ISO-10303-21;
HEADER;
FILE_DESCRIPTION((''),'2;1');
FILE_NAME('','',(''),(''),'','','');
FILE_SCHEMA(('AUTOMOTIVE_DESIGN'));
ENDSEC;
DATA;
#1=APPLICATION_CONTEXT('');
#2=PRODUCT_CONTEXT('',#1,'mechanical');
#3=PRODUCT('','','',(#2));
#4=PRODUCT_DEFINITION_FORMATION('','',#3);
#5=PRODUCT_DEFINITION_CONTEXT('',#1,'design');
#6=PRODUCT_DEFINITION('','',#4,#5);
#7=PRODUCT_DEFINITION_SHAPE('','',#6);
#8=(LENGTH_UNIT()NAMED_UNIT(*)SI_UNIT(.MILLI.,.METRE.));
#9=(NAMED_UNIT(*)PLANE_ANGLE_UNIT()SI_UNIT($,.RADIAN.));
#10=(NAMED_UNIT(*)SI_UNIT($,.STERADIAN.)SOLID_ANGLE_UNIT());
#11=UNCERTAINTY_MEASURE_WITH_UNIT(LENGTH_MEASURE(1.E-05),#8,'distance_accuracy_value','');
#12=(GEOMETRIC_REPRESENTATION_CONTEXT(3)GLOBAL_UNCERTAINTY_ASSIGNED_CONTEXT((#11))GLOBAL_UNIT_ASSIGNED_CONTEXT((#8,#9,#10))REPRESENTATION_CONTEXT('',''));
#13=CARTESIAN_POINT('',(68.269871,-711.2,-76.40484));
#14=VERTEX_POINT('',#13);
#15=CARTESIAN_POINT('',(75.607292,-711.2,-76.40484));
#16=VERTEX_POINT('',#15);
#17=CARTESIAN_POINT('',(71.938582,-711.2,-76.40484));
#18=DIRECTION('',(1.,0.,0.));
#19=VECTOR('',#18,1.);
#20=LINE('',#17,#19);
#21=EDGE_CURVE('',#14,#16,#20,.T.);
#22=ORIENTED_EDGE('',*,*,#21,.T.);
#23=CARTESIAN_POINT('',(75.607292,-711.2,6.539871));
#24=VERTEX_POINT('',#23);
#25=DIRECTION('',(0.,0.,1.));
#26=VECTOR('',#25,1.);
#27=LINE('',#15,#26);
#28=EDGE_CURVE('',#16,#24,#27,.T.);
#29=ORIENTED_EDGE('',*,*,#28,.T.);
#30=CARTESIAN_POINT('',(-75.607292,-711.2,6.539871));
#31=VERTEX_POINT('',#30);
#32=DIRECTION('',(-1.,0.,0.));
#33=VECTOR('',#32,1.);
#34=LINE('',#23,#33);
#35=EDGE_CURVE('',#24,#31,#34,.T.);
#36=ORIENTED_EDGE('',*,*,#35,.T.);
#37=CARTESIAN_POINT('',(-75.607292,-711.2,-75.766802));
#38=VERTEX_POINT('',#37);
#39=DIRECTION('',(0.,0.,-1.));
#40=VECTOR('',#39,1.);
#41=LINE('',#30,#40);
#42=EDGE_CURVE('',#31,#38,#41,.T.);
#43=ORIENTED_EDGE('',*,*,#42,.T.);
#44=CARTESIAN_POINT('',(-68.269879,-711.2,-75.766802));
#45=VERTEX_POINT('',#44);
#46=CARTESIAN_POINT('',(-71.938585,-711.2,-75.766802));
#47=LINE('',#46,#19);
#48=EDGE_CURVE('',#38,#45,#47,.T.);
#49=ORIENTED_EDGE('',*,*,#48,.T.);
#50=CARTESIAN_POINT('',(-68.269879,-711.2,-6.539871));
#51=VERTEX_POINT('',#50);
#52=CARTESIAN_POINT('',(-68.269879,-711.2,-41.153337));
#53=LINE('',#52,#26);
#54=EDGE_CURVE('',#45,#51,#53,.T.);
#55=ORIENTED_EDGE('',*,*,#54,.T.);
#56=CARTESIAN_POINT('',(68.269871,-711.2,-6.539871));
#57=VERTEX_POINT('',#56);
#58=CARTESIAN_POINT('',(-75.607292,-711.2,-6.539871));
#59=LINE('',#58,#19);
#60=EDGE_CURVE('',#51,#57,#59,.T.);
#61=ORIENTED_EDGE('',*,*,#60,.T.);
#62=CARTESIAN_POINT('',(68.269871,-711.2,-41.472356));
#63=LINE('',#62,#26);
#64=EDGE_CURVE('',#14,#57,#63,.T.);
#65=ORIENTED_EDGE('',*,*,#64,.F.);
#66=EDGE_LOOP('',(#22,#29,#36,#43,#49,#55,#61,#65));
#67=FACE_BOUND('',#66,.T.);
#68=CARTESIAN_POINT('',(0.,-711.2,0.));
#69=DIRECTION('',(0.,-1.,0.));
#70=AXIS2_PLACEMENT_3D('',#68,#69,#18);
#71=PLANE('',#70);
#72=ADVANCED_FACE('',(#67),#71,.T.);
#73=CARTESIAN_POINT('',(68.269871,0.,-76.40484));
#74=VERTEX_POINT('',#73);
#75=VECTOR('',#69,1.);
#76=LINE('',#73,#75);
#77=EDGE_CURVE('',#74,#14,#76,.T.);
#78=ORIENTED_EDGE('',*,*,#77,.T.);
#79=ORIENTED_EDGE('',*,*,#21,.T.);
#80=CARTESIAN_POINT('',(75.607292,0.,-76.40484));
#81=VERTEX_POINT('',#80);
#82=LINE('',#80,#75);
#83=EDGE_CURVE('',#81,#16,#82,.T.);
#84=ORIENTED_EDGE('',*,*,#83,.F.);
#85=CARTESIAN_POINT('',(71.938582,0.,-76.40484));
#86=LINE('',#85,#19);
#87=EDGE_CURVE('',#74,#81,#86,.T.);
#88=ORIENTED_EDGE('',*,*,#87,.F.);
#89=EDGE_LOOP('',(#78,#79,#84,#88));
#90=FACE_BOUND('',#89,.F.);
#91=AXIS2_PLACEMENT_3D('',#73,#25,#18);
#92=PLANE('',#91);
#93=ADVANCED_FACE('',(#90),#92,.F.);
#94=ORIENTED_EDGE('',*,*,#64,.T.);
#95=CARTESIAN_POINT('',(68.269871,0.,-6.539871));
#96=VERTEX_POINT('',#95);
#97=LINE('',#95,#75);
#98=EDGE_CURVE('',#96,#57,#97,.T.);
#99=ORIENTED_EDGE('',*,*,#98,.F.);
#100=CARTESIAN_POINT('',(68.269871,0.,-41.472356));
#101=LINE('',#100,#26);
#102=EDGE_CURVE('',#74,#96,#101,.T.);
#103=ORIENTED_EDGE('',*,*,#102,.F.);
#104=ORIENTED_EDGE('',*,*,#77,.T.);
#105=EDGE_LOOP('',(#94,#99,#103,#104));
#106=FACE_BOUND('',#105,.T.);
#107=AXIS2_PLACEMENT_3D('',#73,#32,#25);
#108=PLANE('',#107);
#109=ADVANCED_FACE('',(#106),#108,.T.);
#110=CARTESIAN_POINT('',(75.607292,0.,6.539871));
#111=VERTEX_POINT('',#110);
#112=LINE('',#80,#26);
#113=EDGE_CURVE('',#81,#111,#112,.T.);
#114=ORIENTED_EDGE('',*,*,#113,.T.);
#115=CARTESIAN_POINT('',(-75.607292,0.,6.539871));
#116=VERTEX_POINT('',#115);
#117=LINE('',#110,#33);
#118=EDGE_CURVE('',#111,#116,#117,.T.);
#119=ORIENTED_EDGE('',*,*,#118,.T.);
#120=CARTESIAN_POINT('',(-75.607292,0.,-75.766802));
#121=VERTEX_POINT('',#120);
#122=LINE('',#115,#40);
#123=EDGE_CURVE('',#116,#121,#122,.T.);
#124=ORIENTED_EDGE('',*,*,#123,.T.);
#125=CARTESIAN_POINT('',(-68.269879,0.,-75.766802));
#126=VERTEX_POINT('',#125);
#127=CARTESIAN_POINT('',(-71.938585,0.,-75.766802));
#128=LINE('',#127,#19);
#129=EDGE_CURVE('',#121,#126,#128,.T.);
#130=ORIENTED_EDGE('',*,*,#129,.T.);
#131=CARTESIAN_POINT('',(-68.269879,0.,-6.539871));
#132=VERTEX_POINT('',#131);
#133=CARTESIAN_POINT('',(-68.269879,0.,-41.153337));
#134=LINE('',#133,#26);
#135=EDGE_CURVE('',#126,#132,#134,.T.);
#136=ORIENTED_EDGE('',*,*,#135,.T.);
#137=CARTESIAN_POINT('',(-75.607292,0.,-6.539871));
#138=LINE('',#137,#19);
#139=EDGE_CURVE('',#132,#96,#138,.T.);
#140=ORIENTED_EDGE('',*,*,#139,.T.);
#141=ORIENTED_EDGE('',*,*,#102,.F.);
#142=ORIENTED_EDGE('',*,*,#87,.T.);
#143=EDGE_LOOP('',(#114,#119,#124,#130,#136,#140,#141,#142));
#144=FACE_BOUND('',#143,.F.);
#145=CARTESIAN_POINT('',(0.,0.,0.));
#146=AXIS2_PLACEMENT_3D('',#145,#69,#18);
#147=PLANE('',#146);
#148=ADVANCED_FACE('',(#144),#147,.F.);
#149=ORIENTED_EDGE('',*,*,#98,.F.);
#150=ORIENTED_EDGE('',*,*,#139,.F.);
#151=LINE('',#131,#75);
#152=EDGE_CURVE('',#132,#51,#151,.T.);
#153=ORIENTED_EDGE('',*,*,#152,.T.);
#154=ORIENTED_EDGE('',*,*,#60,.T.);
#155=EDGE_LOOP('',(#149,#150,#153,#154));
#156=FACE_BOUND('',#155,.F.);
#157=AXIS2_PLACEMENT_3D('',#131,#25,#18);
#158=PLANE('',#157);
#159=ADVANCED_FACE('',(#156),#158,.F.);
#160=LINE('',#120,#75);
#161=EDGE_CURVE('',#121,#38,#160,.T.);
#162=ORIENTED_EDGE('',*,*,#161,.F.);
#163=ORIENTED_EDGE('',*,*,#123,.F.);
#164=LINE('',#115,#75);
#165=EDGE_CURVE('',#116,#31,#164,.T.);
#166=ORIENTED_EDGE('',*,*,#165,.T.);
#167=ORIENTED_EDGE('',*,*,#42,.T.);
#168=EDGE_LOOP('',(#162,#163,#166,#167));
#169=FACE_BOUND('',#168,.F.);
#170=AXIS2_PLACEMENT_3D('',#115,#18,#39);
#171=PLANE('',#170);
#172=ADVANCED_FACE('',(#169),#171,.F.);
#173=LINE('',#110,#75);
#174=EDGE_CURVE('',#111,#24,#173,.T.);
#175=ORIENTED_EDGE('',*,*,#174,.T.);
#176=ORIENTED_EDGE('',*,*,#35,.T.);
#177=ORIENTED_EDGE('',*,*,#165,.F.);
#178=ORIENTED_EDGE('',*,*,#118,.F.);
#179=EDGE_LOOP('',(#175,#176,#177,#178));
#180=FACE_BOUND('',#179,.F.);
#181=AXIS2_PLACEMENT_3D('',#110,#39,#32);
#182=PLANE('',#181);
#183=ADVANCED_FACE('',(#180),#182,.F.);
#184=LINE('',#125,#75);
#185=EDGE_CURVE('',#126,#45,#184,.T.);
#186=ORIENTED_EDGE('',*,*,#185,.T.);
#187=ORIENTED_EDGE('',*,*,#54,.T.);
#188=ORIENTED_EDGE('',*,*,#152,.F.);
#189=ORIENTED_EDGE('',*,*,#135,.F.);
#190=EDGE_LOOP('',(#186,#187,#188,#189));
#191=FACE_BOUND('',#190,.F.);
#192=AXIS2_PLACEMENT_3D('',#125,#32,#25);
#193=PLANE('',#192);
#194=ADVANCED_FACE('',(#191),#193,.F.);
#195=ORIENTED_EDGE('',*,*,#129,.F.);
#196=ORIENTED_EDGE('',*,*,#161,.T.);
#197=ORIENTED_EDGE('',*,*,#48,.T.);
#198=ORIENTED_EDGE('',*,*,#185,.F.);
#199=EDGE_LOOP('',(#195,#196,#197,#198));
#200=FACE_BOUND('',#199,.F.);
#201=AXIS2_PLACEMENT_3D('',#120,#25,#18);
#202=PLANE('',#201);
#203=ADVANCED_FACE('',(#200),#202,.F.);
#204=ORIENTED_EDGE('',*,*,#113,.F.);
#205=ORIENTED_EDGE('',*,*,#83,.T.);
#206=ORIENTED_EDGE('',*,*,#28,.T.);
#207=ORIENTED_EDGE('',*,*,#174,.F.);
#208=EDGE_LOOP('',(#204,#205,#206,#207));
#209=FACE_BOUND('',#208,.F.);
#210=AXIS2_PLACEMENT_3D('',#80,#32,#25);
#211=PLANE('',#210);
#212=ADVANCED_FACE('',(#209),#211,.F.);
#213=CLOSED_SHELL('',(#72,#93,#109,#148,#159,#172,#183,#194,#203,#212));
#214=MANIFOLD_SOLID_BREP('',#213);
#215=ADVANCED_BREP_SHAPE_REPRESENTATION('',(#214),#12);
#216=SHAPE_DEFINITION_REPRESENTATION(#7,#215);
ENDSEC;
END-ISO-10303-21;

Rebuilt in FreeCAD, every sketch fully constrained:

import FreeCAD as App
import Part
import Sketcher
from FreeCAD import Vector
Q = App.Units.Quantity

doc = App.newDocument("Part")
body = doc.addObject("PartDesign::Body", "Body")

sketch1 = body.newObject("Sketcher::SketchObject", "Sketch")
sketch1.AttachmentSupport = (doc.getObject("XZ_Plane"), [""])
sketch1.MapMode = "FlatFace"
sketch1.addGeometry([
    Part.LineSegment(Vector(76, 7, 0), Vector(-76, 7, 0)),
    Part.LineSegment(Vector(-76, 7, 0), Vector(-76, -76, 0)),
    Part.LineSegment(Vector(-76, -76, 0), Vector(-68, -76, 0)),
    Part.LineSegment(Vector(-68, -76, 0), Vector(-68, -7, 0)),
    Part.LineSegment(Vector(-68, -7, 0), Vector(68, -7, 0)),
    Part.LineSegment(Vector(68, -7, 0), Vector(68, -76, 0)),
    Part.LineSegment(Vector(68, -76, 0), Vector(76, -76, 0)),
    Part.LineSegment(Vector(76, -76, 0), Vector(76, 7, 0)),
], False)
sketch1.addConstraint([
    Sketcher.Constraint("Coincident", 0, 2, 1, 1),
    Sketcher.Constraint("Coincident", 1, 2, 2, 1),
    Sketcher.Constraint("Coincident", 2, 2, 3, 1),
    Sketcher.Constraint("Coincident", 3, 2, 4, 1),
    Sketcher.Constraint("Coincident", 4, 2, 5, 1),
    Sketcher.Constraint("Coincident", 5, 2, 6, 1),
    Sketcher.Constraint("Coincident", 6, 2, 7, 1),
    Sketcher.Constraint("Coincident", 7, 2, 0, 1),
    Sketcher.Constraint("Horizontal", 0),
    Sketcher.Constraint("Vertical", 1),
    Sketcher.Constraint("Horizontal", 2),
    Sketcher.Constraint("Vertical", 3),
    Sketcher.Constraint("Horizontal", 4),
    Sketcher.Constraint("Vertical", 5),
    Sketcher.Constraint("Horizontal", 6),
    Sketcher.Constraint("Vertical", 7),
    Sketcher.Constraint("DistanceX", 4, 1, 4, 2, Q("136.53975 mm")),
    Sketcher.Constraint("DistanceX", 6, 1, 6, 2, Q("7.337421 mm")),
    Sketcher.Constraint("DistanceY", 3, 1, 3, 2, Q("69.22693 mm")),
    Sketcher.Constraint("DistanceY", 5, 2, 5, 1, Q("69.864968 mm")),
    Sketcher.Constraint("DistanceY", 7, 1, 7, 2, Q("82.944711 mm")),
    Sketcher.Constraint("DistanceY", 1, 2, -1, 1, Q("75.766802 mm")),
    Sketcher.Constraint("DistanceX", 0, 2, 0, 1, Q("151.214585 mm")),
    Sketcher.Constraint("DistanceX", 2, 2, -1, 1, Q("68.269879 mm")),
])
pad1 = body.newObject("PartDesign::Pad", "Pad")
pad1.Profile = sketch1
pad1.Length = Q("28 in")

doc.recompute()
